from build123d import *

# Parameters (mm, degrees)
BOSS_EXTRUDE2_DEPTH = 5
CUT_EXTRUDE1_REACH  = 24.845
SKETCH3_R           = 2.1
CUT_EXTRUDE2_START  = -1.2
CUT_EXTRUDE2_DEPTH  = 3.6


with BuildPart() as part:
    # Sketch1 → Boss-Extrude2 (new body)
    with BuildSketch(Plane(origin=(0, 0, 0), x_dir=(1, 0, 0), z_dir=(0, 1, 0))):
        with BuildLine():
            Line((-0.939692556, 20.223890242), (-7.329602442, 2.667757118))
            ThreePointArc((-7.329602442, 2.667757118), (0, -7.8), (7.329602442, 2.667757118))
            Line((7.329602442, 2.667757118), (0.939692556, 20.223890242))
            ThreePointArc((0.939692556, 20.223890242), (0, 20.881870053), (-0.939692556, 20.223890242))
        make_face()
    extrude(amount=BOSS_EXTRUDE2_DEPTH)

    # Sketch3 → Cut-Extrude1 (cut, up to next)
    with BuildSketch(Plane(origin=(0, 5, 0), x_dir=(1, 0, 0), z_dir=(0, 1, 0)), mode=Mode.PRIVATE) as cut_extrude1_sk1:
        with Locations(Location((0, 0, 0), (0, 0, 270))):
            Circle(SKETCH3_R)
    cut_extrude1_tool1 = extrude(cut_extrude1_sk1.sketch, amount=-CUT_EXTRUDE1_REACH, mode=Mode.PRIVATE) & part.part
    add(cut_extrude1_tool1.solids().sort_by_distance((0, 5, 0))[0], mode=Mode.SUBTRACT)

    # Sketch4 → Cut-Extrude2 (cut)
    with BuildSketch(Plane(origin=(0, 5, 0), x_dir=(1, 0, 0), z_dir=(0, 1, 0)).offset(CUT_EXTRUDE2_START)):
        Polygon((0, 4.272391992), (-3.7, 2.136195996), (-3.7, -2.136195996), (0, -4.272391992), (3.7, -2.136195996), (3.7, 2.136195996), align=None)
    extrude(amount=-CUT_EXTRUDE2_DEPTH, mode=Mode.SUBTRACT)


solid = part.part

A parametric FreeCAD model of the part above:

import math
import FreeCAD as App
import Part
import Sketcher
from FreeCAD import Vector
Q = App.Units.Quantity


def add_polygon(sketch, points):
    """Adds a closed chain of lines whose ends are joined by coincident constraints."""
    first, n = sketch.GeometryCount, len(points)
    for a, b in zip(points, points[1:] + points[:1]):
        sketch.addGeometry(Part.LineSegment(App.Vector(*a, 0), App.Vector(*b, 0)), False)
    for i in range(n):
        sketch.addConstraint(Sketcher.Constraint("Coincident", first + i, 2, first + (i + 1) % n, 1))

doc = App.newDocument("Part")
body = doc.addObject("PartDesign::Body", "Body")

# Sketch on XZ plane
sketch1 = body.newObject("Sketcher::SketchObject", "Sketch")
sketch1.AttachmentSupport = (doc.getObject("XZ_Plane"), [""])
sketch1.MapMode = "FlatFace"
sketch1.addGeometry(Part.LineSegment(Vector(-0.939693, -20.22389, 0), Vector(-7.329602, -2.667757, 0)), False)
sketch1.addGeometry(Part.ArcOfCircle(Part.Circle(Vector(0, 0, 0), Vector(0, 0, 1), 7.8), math.radians(-20), math.radians(200)), False)
sketch1.addGeometry(Part.LineSegment(Vector(7.329602, -2.667757, 0), Vector(0.939693, -20.22389, 0)), False)
sketch1.addGeometry(Part.ArcOfCircle(Part.Circle(Vector(0, -19.88187, 0), Vector(0, 0, 1), 1), math.radians(-160), math.radians(-20)), False)
sketch1.addConstraint(Sketcher.Constraint("Tangent", 0, 2, 1, 2))
sketch1.addConstraint(Sketcher.Constraint("Tangent", 1, 1, 2, 1))
sketch1.addConstraint(Sketcher.Constraint("Tangent", 2, 2, 3, 2))
sketch1.addConstraint(Sketcher.Constraint("Tangent", 3, 1, 0, 1))
sketch1.addConstraint(Sketcher.Constraint("Coincident", 1, 3, -1, 1))
sketch1.addConstraint(Sketcher.Constraint("PointOnObject", 3, 3, -2))
sketch1.addConstraint(Sketcher.Constraint("Radius", 3, 1.0))
sketch1.addConstraint(Sketcher.Constraint("Radius", 1, 7.8))
sketch1.addConstraint(Sketcher.Constraint("Angle", 0, Q("110 deg")))
pad1 = body.newObject("PartDesign::Pad", "Pad")
pad1.Profile = sketch1
pad1.Length = 5
pad1.Reversed = True

# Sketch on XZ plane
sketch2 = body.newObject("Sketcher::SketchObject", "Sketch001")
sketch2.AttachmentSupport = (doc.getObject("XZ_Plane"), [""])
sketch2.MapMode = "FlatFace"
sketch2.AttachmentOffset = App.Placement(Vector(0, 0, -5), App.Rotation())
sketch2.addGeometry(Part.Circle(Vector(0, 0, 0), Vector(0, 0, 1), 2.1), False)
sketch2.addConstraint(Sketcher.Constraint("Coincident", 0, 3, -1, 1))
sketch2.addConstraint(Sketcher.Constraint("Diameter", 0, 4.2))
pocket1 = body.newObject("PartDesign::Pocket", "Pocket")
pocket1.Profile = sketch2
pocket1.Type = "UpToFirst"
pocket1.Reversed = True

# Sketch on XZ plane
sketch3 = body.newObject("Sketcher::SketchObject", "Sketch002")
sketch3.AttachmentSupport = (doc.getObject("XZ_Plane"), [""])
sketch3.MapMode = "FlatFace"
sketch3.AttachmentOffset = App.Placement(Vector(0, 0, -3.8), App.Rotation())
add_polygon(sketch3, [(0, -4.272392), (-3.7, -2.136196), (-3.7, 2.136196), (0, 4.272392), (3.7, 2.136196), (3.7, -2.136196)])  # lines 0-5
sketch3.addConstraint(Sketcher.Constraint("Vertical", 1))
sketch3.addConstraint(Sketcher.Constraint("Vertical", 4))
sketch3.addConstraint(Sketcher.Constraint("Symmetric", 0, 2, 3, 2, -1, 1))
sketch3.addConstraint(Sketcher.Constraint("Symmetric", 2, 2, 5, 2, -1, 1))
sketch3.addConstraint(Sketcher.Constraint("PointOnObject", 2, 2, -2))
sketch3.addConstraint(Sketcher.Constraint("Parallel", 2, 5))
sketch3.addConstraint(Sketcher.Constraint("Horizontal", 1, 2, 3, 2))
sketch3.addConstraint(Sketcher.Constraint("Angle", 0, Q("150 deg")))
sketch3.addConstraint(Sketcher.Constraint("DistanceX", 0, 2, -1, 1, 3.7))
sketch3.addConstraint(Sketcher.Constraint("DistanceY", 1, 1, 1, 2, 4.272392))
pocket2 = body.newObject("PartDesign::Pocket", "Pocket001")
pocket2.Profile = sketch3
pocket2.Length = 3.6
pocket2.Reversed = True

doc.recompute()
